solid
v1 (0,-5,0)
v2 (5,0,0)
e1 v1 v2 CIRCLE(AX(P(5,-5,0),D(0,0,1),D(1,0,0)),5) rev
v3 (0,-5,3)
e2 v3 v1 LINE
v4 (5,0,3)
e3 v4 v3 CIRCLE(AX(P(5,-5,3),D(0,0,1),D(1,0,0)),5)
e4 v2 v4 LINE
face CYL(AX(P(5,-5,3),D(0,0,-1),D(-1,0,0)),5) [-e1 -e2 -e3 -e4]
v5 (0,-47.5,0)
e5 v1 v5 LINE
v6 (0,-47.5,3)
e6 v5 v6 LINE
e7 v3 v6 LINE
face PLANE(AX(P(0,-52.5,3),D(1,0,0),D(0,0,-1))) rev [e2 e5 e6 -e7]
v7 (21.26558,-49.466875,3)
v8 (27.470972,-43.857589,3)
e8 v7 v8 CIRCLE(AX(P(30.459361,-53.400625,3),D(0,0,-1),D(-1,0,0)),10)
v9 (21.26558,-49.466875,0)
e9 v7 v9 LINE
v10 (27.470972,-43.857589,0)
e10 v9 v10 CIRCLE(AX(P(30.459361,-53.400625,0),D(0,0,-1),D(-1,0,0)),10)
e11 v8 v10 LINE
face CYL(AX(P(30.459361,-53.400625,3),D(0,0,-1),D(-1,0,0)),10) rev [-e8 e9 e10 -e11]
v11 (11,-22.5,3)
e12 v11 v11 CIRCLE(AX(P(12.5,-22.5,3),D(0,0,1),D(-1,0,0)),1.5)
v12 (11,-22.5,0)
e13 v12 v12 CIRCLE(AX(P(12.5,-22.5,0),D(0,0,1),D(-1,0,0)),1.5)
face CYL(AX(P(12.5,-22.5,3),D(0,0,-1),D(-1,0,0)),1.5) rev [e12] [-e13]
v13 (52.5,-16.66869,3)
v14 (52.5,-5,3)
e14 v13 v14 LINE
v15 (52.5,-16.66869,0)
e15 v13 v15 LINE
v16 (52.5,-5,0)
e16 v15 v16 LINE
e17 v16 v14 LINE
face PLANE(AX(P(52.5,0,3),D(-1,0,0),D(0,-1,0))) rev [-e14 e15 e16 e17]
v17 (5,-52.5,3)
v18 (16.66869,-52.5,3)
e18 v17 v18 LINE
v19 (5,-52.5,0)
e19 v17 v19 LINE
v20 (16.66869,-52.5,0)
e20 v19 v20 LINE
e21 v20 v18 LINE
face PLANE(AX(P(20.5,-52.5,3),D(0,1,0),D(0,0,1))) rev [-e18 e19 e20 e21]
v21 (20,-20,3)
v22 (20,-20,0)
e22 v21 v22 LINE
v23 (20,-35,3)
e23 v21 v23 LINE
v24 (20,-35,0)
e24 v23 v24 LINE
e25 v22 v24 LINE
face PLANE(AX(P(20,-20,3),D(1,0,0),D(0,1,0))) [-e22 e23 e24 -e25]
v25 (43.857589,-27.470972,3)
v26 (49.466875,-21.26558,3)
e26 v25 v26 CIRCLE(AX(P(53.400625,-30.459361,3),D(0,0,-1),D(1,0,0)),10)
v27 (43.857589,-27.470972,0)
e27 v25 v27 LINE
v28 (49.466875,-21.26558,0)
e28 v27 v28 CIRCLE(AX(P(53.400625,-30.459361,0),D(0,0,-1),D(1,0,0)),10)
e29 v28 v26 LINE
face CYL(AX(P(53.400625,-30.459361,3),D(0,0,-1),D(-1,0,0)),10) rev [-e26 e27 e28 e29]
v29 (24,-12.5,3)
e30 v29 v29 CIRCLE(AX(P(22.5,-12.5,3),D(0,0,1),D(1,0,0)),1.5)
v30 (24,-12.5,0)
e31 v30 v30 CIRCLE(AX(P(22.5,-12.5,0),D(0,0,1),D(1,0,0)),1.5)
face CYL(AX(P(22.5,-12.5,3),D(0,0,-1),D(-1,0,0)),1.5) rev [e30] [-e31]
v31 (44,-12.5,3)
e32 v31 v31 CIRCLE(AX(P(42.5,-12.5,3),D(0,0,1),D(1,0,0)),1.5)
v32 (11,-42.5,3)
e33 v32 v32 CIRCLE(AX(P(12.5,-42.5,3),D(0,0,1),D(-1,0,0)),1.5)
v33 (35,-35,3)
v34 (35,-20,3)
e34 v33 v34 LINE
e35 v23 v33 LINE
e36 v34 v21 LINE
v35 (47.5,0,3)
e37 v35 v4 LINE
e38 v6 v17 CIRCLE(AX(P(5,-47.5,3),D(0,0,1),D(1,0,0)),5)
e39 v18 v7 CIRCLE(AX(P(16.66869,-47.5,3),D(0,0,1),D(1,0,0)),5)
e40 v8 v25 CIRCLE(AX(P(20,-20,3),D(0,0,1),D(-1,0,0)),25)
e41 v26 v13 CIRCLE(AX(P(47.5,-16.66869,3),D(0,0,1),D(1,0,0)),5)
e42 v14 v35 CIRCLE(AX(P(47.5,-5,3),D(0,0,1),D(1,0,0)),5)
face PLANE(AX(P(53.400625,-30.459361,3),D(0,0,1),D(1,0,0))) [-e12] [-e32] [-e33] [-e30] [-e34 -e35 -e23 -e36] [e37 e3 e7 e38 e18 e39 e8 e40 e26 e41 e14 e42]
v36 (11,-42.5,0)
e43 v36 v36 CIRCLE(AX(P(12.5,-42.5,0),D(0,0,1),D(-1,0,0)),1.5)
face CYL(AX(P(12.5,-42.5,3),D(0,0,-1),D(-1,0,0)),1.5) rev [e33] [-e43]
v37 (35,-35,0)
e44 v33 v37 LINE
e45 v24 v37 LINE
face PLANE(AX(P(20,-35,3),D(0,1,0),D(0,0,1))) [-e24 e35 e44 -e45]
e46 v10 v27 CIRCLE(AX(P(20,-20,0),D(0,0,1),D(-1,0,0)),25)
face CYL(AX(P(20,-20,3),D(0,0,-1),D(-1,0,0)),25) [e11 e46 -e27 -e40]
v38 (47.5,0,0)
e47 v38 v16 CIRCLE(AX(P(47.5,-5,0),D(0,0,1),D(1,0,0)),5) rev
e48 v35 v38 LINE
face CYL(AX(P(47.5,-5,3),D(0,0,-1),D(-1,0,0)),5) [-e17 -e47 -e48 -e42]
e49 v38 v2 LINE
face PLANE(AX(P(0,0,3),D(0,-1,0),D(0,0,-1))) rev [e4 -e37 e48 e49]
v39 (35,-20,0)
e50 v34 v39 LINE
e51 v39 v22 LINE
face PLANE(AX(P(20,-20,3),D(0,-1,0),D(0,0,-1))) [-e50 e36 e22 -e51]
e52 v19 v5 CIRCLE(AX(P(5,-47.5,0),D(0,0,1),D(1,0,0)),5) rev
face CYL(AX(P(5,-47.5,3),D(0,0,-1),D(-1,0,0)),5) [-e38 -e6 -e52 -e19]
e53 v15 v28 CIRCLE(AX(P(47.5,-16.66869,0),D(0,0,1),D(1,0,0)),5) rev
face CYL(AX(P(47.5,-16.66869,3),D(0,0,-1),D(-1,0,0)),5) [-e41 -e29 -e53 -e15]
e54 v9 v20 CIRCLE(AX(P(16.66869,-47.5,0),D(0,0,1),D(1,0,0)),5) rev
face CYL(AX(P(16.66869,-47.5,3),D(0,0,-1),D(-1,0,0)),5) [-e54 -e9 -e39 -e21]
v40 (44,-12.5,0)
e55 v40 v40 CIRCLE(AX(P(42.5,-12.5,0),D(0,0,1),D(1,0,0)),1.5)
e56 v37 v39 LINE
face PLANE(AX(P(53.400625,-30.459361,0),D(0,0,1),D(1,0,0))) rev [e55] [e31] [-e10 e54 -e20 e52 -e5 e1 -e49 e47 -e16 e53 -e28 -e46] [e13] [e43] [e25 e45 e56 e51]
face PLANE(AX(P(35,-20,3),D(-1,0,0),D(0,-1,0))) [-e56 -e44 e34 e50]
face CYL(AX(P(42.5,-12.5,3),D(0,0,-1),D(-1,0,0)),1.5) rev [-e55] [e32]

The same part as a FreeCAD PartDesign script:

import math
import FreeCAD as App
import Part
import Sketcher
from FreeCAD import Vector


def edges_at(feature, points):
    """Names of the edges that pass closest to the given points."""
    edges = feature.Shape.Edges
    near = lambda p: min(range(len(edges)), key=lambda i: edges[i].distToShape(Part.Vertex(*p))[0])
    return sorted({f"Edge{near(p) + 1}" for p in points})


def add_polygon(sketch, points):
    """Adds a closed chain of lines whose ends are joined by coincident constraints."""
    first, n = sketch.GeometryCount, len(points)
    for a, b in zip(points, points[1:] + points[:1]):
        sketch.addGeometry(Part.LineSegment(App.Vector(*a, 0), App.Vector(*b, 0)), False)
    for i in range(n):
        sketch.addConstraint(Sketcher.Constraint("Coincident", first + i, 2, first + (i + 1) % n, 1))

doc = App.newDocument("Part")
body = doc.addObject("PartDesign::Body", "Body")

# Sketch on XY plane
sketch1 = body.newObject("Sketcher::SketchObject", "Sketch")
sketch1.AttachmentSupport = (doc.getObject("XY_Plane"), [""])
sketch1.MapMode = "FlatFace"
sketch1.addGeometry(Part.LineSegment(Vector(52.5, 0, 0), Vector(0, 0, 0)), False)  # 0
sketch1.addGeometry(Part.LineSegment(Vector(0, 0, 0), Vector(0, -52.5, 0)), False)  # 1
sketch1.addGeometry(Part.LineSegment(Vector(0, -52.5, 0), Vector(20.5, -52.5, 0)), False)  # 2
sketch1.addGeometry(Part.ArcOfCircle(Part.Circle(Vector(30.5, -53.4, 0), Vector(0, 0, 1), 10), math.radians(107), math.radians(175)), False)  # 3
sketch1.addGeometry(Part.ArcOfCircle(Part.Circle(Vector(20, -20, 0), Vector(0, 0, 1), 25), math.radians(-73), math.radians(-17)), False)  # 4
sketch1.addGeometry(Part.ArcOfCircle(Part.Circle(Vector(53.4, -30.5, 0), Vector(0, 0, 1), 10), math.radians(95), math.radians(163)), False)  # 5
sketch1.addGeometry(Part.LineSegment(Vector(52.5, -20.5, 0), Vector(52.5, 0, 0)), False)  # 6
sketch1.addGeometry(Part.Circle(Vector(12.5, -42.5, 0), Vector(0, 0, 1), 1.5), False)  # 7
sketch1.addGeometry(Part.Circle(Vector(42.5, -12.5, 0), Vector(0, 0, 1), 1.5), False)  # 8
add_polygon(sketch1, [(20, -35), (20, -20), (35, -20), (35, -35)])  # lines 9-12
sketch1.addGeometry(Part.Circle(Vector(12.5, -22.5, 0), Vector(0, 0, 1), 1.5), False)  # 13
sketch1.addGeometry(Part.Circle(Vector(22.5, -12.5, 0), Vector(0, 0, 1), 1.5), False)  # 14
sketch1.addConstraint(Sketcher.Constraint("Coincident", 0, 2, 1, 1))
sketch1.addConstraint(Sketcher.Constraint("Coincident", 1, 2, 2, 1))
sketch1.addConstraint(Sketcher.Constraint("Coincident", 2, 2, 3, 2))
sketch1.addConstraint(Sketcher.Constraint("Tangent", 3, 1, 4, 1))
sketch1.addConstraint(Sketcher.Constraint("Tangent", 4, 2, 5, 2))
sketch1.addConstraint(Sketcher.Constraint("Coincident", 5, 1, 6, 1))
sketch1.addConstraint(Sketcher.Constraint("Coincident", 6, 2, 0, 1))
sketch1.addConstraint(Sketcher.Constraint("Horizontal", 0))
sketch1.addConstraint(Sketcher.Constraint("Vertical", 1))
sketch1.addConstraint(Sketcher.Constraint("Horizontal", 2))
sketch1.addConstraint(Sketcher.Constraint("Vertical", 6))
sketch1.addConstraint(Sketcher.Constraint("Vertical", 9))
sketch1.addConstraint(Sketcher.Constraint("Horizontal", 10))
sketch1.addConstraint(Sketcher.Constraint("Vertical", 11))
sketch1.addConstraint(Sketcher.Constraint("Horizontal", 12))
sketch1.addConstraint(Sketcher.Constraint("Coincident", 0, 2, -1, 1))
sketch1.addConstraint(Sketcher.Constraint("Coincident", 9, 2, 4, 3))
sketch1.addConstraint(Sketcher.Constraint("Equal", 3, 5))
sketch1.addConstraint(Sketcher.Constraint("Equal", 7, 8))
sketch1.addConstraint(Sketcher.Constraint("Equal", 8, 13))
sketch1.addConstraint(Sketcher.Constraint("Equal", 13, 14))
sketch1.addConstraint(Sketcher.Constraint("Horizontal", 8, 3, 14, 3))
sketch1.addConstraint(Sketcher.Constraint("Vertical", 7, 3, 13, 3))
sketch1.addConstraint(Sketcher.Constraint("Equal", 0, 1))
sketch1.addConstraint(Sketcher.Constraint("Equal", 2, 6))
sketch1.addConstraint(Sketcher.Constraint("Equal", 12, 9))
sketch1.addConstraint(Sketcher.Constraint("Diameter", 7, 3.0))
sketch1.addConstraint(Sketcher.Constraint("Radius", 3, 10.0))
sketch1.addConstraint(Sketcher.Constraint("Radius", 4, 25.0))
sketch1.addConstraint(Sketcher.Constraint("DistanceX", 10, 1, 10, 2, 15.0))
sketch1.addConstraint(Sketcher.Constraint("DistanceX", 0, 2, 0, 1, 52.5))
sketch1.addConstraint(Sketcher.Constraint("DistanceX", 2, 1, 2, 2, 20.5))
sketch1.addConstraint(Sketcher.Constraint("DistanceX", -1, 1, 4, 3, 20.0))
sketch1.addConstraint(Sketcher.Constraint("DistanceY", 4, 3, -1, 1, 20.0))
sketch1.addConstraint(Sketcher.Constraint("DistanceX", 7, 3, 8, 3, 30.0))
sketch1.addConstraint(Sketcher.Constraint("DistanceY", 7, 3, 8, 3, 30.0))
sketch1.addConstraint(Sketcher.Constraint("DistanceY", 7, 3, 13, 3, 20.0))
sketch1.addConstraint(Sketcher.Constraint("DistanceX", 13, 3, 14, 3, 10.0))
sketch1.addConstraint(Sketcher.Constraint("DistanceY", 1, 2, 7, 3, 10.0))
sketch1.addConstraint(Sketcher.Constraint("DistanceX", 7, 3, 2, 2, 8.0))
pad1 = body.newObject("PartDesign::Pad", "Pad")
pad1.Profile = sketch1
pad1.Length = 3
doc.recompute()

fillet = body.newObject("PartDesign::Fillet", "Fillet")
fillet.Base = (pad1, edges_at(pad1, [
    (0, 0, 1.5),
    (52.5, 0, 1.5),
    (52.5, -20.5, 1.5),
    (20.5, -52.5, 1.5),
    (0, -52.5, 1.5),
]))
fillet.Radius = 5

doc.recompute()
